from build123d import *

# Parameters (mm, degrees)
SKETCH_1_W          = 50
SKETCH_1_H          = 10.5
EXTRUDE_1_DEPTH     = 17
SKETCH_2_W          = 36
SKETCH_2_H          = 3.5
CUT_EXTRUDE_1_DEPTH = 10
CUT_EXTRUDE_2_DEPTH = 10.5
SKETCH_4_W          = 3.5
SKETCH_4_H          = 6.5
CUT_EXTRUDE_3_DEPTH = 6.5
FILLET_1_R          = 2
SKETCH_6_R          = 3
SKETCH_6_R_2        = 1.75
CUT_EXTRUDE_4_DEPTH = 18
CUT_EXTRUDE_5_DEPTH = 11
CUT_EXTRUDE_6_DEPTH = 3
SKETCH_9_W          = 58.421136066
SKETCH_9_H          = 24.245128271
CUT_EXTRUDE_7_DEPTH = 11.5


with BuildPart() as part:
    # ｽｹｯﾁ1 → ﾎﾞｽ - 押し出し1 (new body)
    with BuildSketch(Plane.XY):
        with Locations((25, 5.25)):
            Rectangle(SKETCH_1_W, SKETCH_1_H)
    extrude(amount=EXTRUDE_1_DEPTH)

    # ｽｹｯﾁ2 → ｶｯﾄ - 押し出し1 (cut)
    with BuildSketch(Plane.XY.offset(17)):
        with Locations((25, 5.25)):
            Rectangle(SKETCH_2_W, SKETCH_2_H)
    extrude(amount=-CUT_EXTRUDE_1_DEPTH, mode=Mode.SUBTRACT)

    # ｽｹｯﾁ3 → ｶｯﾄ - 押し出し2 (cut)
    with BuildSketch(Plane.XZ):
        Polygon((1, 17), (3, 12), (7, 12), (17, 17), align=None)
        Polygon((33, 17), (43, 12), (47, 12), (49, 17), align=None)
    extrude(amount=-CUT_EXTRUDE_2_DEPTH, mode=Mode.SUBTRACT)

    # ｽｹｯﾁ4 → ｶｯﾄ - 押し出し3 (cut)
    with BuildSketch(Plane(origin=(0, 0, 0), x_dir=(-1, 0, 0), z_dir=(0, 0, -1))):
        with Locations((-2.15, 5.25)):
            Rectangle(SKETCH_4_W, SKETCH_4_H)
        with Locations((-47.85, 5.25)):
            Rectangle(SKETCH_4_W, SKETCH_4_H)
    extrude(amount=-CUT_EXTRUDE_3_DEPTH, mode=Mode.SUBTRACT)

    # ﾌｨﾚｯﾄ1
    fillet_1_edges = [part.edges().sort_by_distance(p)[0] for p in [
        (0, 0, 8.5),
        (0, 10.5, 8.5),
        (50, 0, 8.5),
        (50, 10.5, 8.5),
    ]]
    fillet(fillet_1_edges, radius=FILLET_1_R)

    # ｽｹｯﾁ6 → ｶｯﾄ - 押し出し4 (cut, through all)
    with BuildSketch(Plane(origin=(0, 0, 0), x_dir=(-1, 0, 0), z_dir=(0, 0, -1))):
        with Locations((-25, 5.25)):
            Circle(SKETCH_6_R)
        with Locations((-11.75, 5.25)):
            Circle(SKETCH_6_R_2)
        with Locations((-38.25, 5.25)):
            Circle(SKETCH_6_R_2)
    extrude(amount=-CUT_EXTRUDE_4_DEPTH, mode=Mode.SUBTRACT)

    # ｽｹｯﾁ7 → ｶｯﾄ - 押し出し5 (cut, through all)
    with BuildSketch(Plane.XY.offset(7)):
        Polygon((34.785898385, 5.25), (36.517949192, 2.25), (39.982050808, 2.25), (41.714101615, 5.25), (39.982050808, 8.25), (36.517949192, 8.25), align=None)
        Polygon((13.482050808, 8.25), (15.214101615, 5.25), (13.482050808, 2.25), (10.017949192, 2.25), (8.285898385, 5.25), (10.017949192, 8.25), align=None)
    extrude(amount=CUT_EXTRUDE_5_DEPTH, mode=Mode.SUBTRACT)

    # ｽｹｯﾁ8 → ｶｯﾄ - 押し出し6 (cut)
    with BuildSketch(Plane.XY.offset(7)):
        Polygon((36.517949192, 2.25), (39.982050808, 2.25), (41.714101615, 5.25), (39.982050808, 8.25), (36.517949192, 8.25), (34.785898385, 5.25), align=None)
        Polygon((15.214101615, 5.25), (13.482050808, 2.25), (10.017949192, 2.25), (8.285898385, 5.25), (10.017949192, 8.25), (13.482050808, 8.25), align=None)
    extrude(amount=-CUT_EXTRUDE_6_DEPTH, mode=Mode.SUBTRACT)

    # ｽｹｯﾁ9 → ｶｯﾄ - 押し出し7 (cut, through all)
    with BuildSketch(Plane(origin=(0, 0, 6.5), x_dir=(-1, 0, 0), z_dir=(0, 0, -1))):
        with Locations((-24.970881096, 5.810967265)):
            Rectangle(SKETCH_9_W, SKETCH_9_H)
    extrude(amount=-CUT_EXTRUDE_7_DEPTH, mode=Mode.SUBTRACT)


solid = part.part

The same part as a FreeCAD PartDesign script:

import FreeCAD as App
import Part
import Sketcher
Q = App.Units.Quantity


def edges_at(feature, points):
    """Names of the edges that pass closest to the given points."""
    edges = feature.Shape.Edges
    near = lambda p: min(range(len(edges)), key=lambda i: edges[i].distToShape(Part.Vertex(*p))[0])
    return sorted({f"Edge{near(p) + 1}" for p in points})

doc = App.newDocument("Part")
params = doc.addObject("Spreadsheet::Sheet", "Params")
for row, (alias, value) in enumerate([
    ("sketch1_width", "50 mm"),
    ("sketch1_height", "10.5 mm"),
    ("pad1_length", "17 mm"),
    ("sketch2_width", "36 mm"),
    ("sketch2_height", "3.5 mm"),
    ("pocket1_length", "10 mm"),
    ("sketch3_width", "4 mm"),
    ("sketch3_width2", "16 mm"),
    ("pocket2_length", "10.5 mm"),
    ("sketch4_width", "3.5 mm"),
    ("sketch4_height", "6.5 mm"),
    ("pocket3_length", "6.5 mm"),
    ("fillet_radius", "2 mm"),
    ("sketch5_diameter", "6 mm"),
    ("sketch5_diameter2", "3.5 mm"),
    ("pocket6_length", "3 mm"),
], start=1):
    params.set(f"A{row}", alias)
    params.set(f"B{row}", "=" + value)
    params.setAlias(f"B{row}", alias)

body = doc.addObject("PartDesign::Body", "Body")

# Sketch on XY plane
sketch1 = body.newObject("Sketcher::SketchObject", "Sketch")
sketch1.AttachmentSupport = (doc.getObject("XY_Plane"), [""])
sketch1.MapMode = "FlatFace"
sketch1.addGeometry([
    Part.LineSegment(App.Vector(0, 10.5, 0), App.Vector(0, 0, 0)),
    Part.LineSegment(App.Vector(0, 0, 0), App.Vector(50, 0, 0)),
    Part.LineSegment(App.Vector(50, 0, 0), App.Vector(50, 10.5, 0)),
    Part.LineSegment(App.Vector(50, 10.5, 0), App.Vector(0, 10.5, 0)),
], False)
sketch1.addConstraint([
    Sketcher.Constraint("Coincident", 0, 2, 1, 1),
    Sketcher.Constraint("Coincident", 1, 2, 2, 1),
    Sketcher.Constraint("Coincident", 2, 2, 3, 1),
    Sketcher.Constraint("Coincident", 3, 2, 0, 1),
    Sketcher.Constraint("Vertical", 0),
    Sketcher.Constraint("Horizontal", 1),
    Sketcher.Constraint("Vertical", 2),
    Sketcher.Constraint("Horizontal", 3),
    Sketcher.Constraint("Coincident", 0, 2, -1, 1),
    Sketcher.Constraint("DistanceX", 1, 1, 1, 2, 50.0),
    Sketcher.Constraint("DistanceY", 0, 2, 0, 1, 10.5),
])
sketch1.setExpression("Constraints[9]", "Params.sketch1_width")
sketch1.setExpression("Constraints[10]", "Params.sketch1_height")
pad1 = body.newObject("PartDesign::Pad", "Pad")
pad1.Profile = sketch1
pad1.setExpression("Length", "Params.pad1_length")

# Sketch on XY plane
sketch2 = body.newObject("Sketcher::SketchObject", "Sketch001")
sketch2.AttachmentSupport = (doc.getObject("XY_Plane"), [""])
sketch2.MapMode = "FlatFace"
sketch2.AttachmentOffset = App.Placement(App.Vector(0, 0, 17), App.Rotation())
sketch2.addGeometry([
    Part.LineSegment(App.Vector(7, 7, 0), App.Vector(7, 3.5, 0)),
    Part.LineSegment(App.Vector(7, 3.5, 0), App.Vector(43, 3.5, 0)),
    Part.LineSegment(App.Vector(43, 3.5, 0), App.Vector(43, 7, 0)),
    Part.LineSegment(App.Vector(43, 7, 0), App.Vector(7, 7, 0)),
], False)
sketch2.addConstraint([
    Sketcher.Constraint("Coincident", 0, 2, 1, 1),
    Sketcher.Constraint("Coincident", 1, 2, 2, 1),
    Sketcher.Constraint("Coincident", 2, 2, 3, 1),
    Sketcher.Constraint("Coincident", 3, 2, 0, 1),
    Sketcher.Constraint("Vertical", 0),
    Sketcher.Constraint("Horizontal", 1),
    Sketcher.Constraint("Vertical", 2),
    Sketcher.Constraint("Horizontal", 3),
    Sketcher.Constraint("DistanceX", 1, 1, 1, 2, 36.0),
    Sketcher.Constraint("DistanceY", 0, 2, 0, 1, 3.5),
    Sketcher.Constraint("DistanceX", -1, 1, 0, 2, 7.0),
    Sketcher.Constraint("DistanceY", -1, 1, 2, 2, 7.0),
])
sketch2.setExpression("Constraints[8]", "Params.sketch2_width")
sketch2.setExpression("Constraints[9]", "Params.sketch2_height")
pocket1 = body.newObject("PartDesign::Pocket", "Pocket")
pocket1.Profile = sketch2
pocket1.setExpression("Length", "Params.pocket1_length")

# Sketch on XZ plane
sketch3 = body.newObject("Sketcher::SketchObject", "Sketch002")
sketch3.AttachmentSupport = (doc.getObject("XZ_Plane"), [""])
sketch3.MapMode = "FlatFace"
sketch3.addGeometry([
    Part.LineSegment(App.Vector(1, 17, 0), App.Vector(3, 12, 0)),  # 0
    Part.LineSegment(App.Vector(3, 12, 0), App.Vector(7, 12, 0)),  # 1
    Part.LineSegment(App.Vector(7, 12, 0), App.Vector(17, 17, 0)),  # 2
    Part.LineSegment(App.Vector(17, 17, 0), App.Vector(1, 17, 0)),  # 3
    Part.LineSegment(App.Vector(33, 17, 0), App.Vector(43, 12, 0)),  # 4
    Part.LineSegment(App.Vector(43, 12, 0), App.Vector(47, 12, 0)),  # 5
    Part.LineSegment(App.Vector(47, 12, 0), App.Vector(49, 17, 0)),  # 6
    Part.LineSegment(App.Vector(49, 17, 0), App.Vector(33, 17, 0)),  # 7
], False)
sketch3.addConstraint([
    Sketcher.Constraint("Coincident", 0, 2, 1, 1),
    Sketcher.Constraint("Coincident", 1, 2, 2, 1),
    Sketcher.Constraint("Coincident", 2, 2, 3, 1),
    Sketcher.Constraint("Coincident", 3, 2, 0, 1),
    Sketcher.Constraint("Coincident", 4, 2, 5, 1),
    Sketcher.Constraint("Coincident", 5, 2, 6, 1),
    Sketcher.Constraint("Coincident", 6, 2, 7, 1),
    Sketcher.Constraint("Coincident", 7, 2, 4, 1),
    Sketcher.Constraint("Horizontal", 1),
    Sketcher.Constraint("Horizontal", 3),
    Sketcher.Constraint("Horizontal", 5),
    Sketcher.Constraint("Horizontal", 7),
    Sketcher.Constraint("Horizontal", 1, 2, 4, 2),
    Sketcher.Constraint("Horizontal", 3, 2, 6, 2),
    Sketcher.Constraint("Equal", 1, 5),
    Sketcher.Constraint("Equal", 3, 7),
    Sketcher.Constraint("Equal", 2, 4),
    Sketcher.Constraint("DistanceX", 1, 1, 1, 2, 4.0),
    Sketcher.Constraint("DistanceX", 3, 2, 3, 1, 16.0),
    Sketcher.Constraint("DistanceX", -1, 1, 0, 2, 3.0),
    Sketcher.Constraint("DistanceY", -1, 1, 0, 2, 12.0),
    Sketcher.Constraint("DistanceX", -1, 1, 2, 2, 17.0),
    Sketcher.Constraint("DistanceY", -1, 1, 2, 2, 17.0),
    Sketcher.Constraint("DistanceX", -1, 1, 4, 2, 43.0),
])
sketch3.setExpression("Constraints[17]", "Params.sketch3_width")
sketch3.setExpression("Constraints[18]", "Params.sketch3_width2")
pocket2 = body.newObject("PartDesign::Pocket", "Pocket001")
pocket2.Profile = sketch3
pocket2.setExpression("Length", "Params.pocket2_length")

# Sketch on XY plane
sketch4 = body.newObject("Sketcher::SketchObject", "Sketch003")
sketch4.AttachmentSupport = (doc.getObject("XY_Plane"), [""])
sketch4.MapMode = "FlatFace"
sketch4.addGeometry([
    Part.LineSegment(App.Vector(3.9, 8.5, 0), App.Vector(3.9, 2, 0)),  # 0
    Part.LineSegment(App.Vector(3.9, 2, 0), App.Vector(0.4, 2, 0)),  # 1
    Part.LineSegment(App.Vector(0.4, 2, 0), App.Vector(0.4, 8.5, 0)),  # 2
    Part.LineSegment(App.Vector(0.4, 8.5, 0), App.Vector(3.9, 8.5, 0)),  # 3
    Part.LineSegment(App.Vector(49.6, 8.5, 0), App.Vector(49.6, 2, 0)),  # 4
    Part.LineSegment(App.Vector(49.6, 2, 0), App.Vector(46.1, 2, 0)),  # 5
    Part.LineSegment(App.Vector(46.1, 2, 0), App.Vector(46.1, 8.5, 0)),  # 6
    Part.LineSegment(App.Vector(46.1, 8.5, 0), App.Vector(49.6, 8.5, 0)),  # 7
], False)
sketch4.addConstraint([
    Sketcher.Constraint("Coincident", 0, 2, 1, 1),
    Sketcher.Constraint("Coincident", 1, 2, 2, 1),
    Sketcher.Constraint("Coincident", 2, 2, 3, 1),
    Sketcher.Constraint("Coincident", 3, 2, 0, 1),
    Sketcher.Constraint("Coincident", 4, 2, 5, 1),
    Sketcher.Constraint("Coincident", 5, 2, 6, 1),
    Sketcher.Constraint("Coincident", 6, 2, 7, 1),
    Sketcher.Constraint("Coincident", 7, 2, 4, 1),
    Sketcher.Constraint("Vertical", 0),
    Sketcher.Constraint("Horizontal", 1),
    Sketcher.Constraint("Vertical", 2),
    Sketcher.Constraint("Horizontal", 3),
    Sketcher.Constraint("Vertical", 4),
    Sketcher.Constraint("Horizontal", 5),
    Sketcher.Constraint("Vertical", 6),
    Sketcher.Constraint("Horizontal", 7),
    Sketcher.Constraint("Horizontal", 1, 2, 4, 2),
    Sketcher.Constraint("Horizontal", 3, 2, 6, 2),
    Sketcher.Constraint("Equal", 3, 5),
    Sketcher.Constraint("DistanceX", 1, 2, 1, 1, 3.5),
    Sketcher.Constraint("DistanceY", 0, 2, 0, 1, 6.5),
    Sketcher.Constraint("DistanceY", -1, 1, 0, 2, 2.0),
    Sketcher.Constraint("DistanceX", -1, 1, 0, 2, 3.9),
    Sketcher.Constraint("DistanceX", -1, 1, 4, 2, 49.6),
])
sketch4.setExpression("Constraints[19]", "Params.sketch4_width")
sketch4.setExpression("Constraints[20]", "Params.sketch4_height")
pocket3 = body.newObject("PartDesign::Pocket", "Pocket002")
pocket3.Profile = sketch4
pocket3.setExpression("Length", "Params.pocket3_length")
pocket3.Reversed = True
doc.recompute()

fillet = body.newObject("PartDesign::Fillet", "Fillet")
fillet.Base = (pocket3, edges_at(pocket3, [
    (0, 0, 8.5),
    (0, 10.5, 8.5),
    (50, 0, 8.5),
    (50, 10.5, 8.5),
]))
fillet.setExpression("Radius", "Params.fillet_radius")

# Sketch on XY plane
sketch5 = body.newObject("Sketcher::SketchObject", "Sketch004")
sketch5.AttachmentSupport = (doc.getObject("XY_Plane"), [""])
sketch5.MapMode = "FlatFace"
sketch5.addGeometry([
    Part.Circle(App.Vector(25, 5.25, 0), App.Vector(0, 0, 1), 3),
    Part.Circle(App.Vector(11.75, 5.25, 0), App.Vector(0, 0, 1), 1.75),
    Part.Circle(App.Vector(38.25, 5.25, 0), App.Vector(0, 0, 1), 1.75),
], False)
sketch5.addConstraint([
    Sketcher.Constraint("Equal", 1, 2),
    Sketcher.Constraint("Horizontal", 0, 3, 1, 3),
    Sketcher.Constraint("Horizontal", 1, 3, 2, 3),
    Sketcher.Constraint("Diameter", 0, 6.0),
    Sketcher.Constraint("Diameter", 1, 3.5),
    Sketcher.Constraint("DistanceX", -1, 1, 0, 3, 25.0),
    Sketcher.Constraint("DistanceX", 1, 3, 2, 3, 26.5),
    Sketcher.Constraint("DistanceY", -1, 1, 0, 3, 5.25),
    Sketcher.Constraint("DistanceX", -1, 1, 1, 3, 11.75),
])
sketch5.setExpression("Constraints[3]", "Params.sketch5_diameter")
sketch5.setExpression("Constraints[4]", "Params.sketch5_diameter2")
pocket4 = body.newObject("PartDesign::Pocket", "Pocket003")
pocket4.Profile = sketch5
pocket4.Type = "ThroughAll"
pocket4.Reversed = True

# Sketch on XY plane
sketch6 = body.newObject("Sketcher::SketchObject", "Sketch005")
sketch6.AttachmentSupport = (doc.getObject("XY_Plane"), [""])
sketch6.MapMode = "FlatFace"
sketch6.AttachmentOffset = App.Placement(App.Vector(0, 0, 7), App.Rotation())
sketch6.addGeometry([
    Part.LineSegment(App.Vector(34.785898, 5.25, 0), App.Vector(36.517949, 2.25, 0)),  # 0
    Part.LineSegment(App.Vector(36.517949, 2.25, 0), App.Vector(39.982051, 2.25, 0)),  # 1
    Part.LineSegment(App.Vector(39.982051, 2.25, 0), App.Vector(41.714102, 5.25, 0)),  # 2
    Part.LineSegment(App.Vector(41.714102, 5.25, 0), App.Vector(39.982051, 8.25, 0)),  # 3
    Part.LineSegment(App.Vector(39.982051, 8.25, 0), App.Vector(36.517949, 8.25, 0)),  # 4
    Part.LineSegment(App.Vector(36.517949, 8.25, 0), App.Vector(34.785898, 5.25, 0)),  # 5
    Part.LineSegment(App.Vector(15.214102, 5.25, 0), App.Vector(13.482051, 8.25, 0)),  # 6
    Part.LineSegment(App.Vector(13.482051, 8.25, 0), App.Vector(10.017949, 8.25, 0)),  # 7
    Part.LineSegment(App.Vector(10.017949, 8.25, 0), App.Vector(8.285898, 5.25, 0)),  # 8
    Part.LineSegment(App.Vector(8.285898, 5.25, 0), App.Vector(10.017949, 2.25, 0)),  # 9
    Part.LineSegment(App.Vector(10.017949, 2.25, 0), App.Vector(13.482051, 2.25, 0)),  # 10
    Part.LineSegment(App.Vector(13.482051, 2.25, 0), App.Vector(15.214102, 5.25, 0)),  # 11
], False)
sketch6.addConstraint([
    Sketcher.Constraint("Coincident", 0, 2, 1, 1),
    Sketcher.Constraint("Coincident", 1, 2, 2, 1),
    Sketcher.Constraint("Coincident", 2, 2, 3, 1),
    Sketcher.Constraint("Coincident", 3, 2, 4, 1),
    Sketcher.Constraint("Coincident", 4, 2, 5, 1),
    Sketcher.Constraint("Coincident", 5, 2, 0, 1),
    Sketcher.Constraint("Coincident", 6, 2, 7, 1),
    Sketcher.Constraint("Coincident", 7, 2, 8, 1),
    Sketcher.Constraint("Coincident", 8, 2, 9, 1),
    Sketcher.Constraint("Coincident", 9, 2, 10, 1),
    Sketcher.Constraint("Coincident", 10, 2, 11, 1),
    Sketcher.Constraint("Coincident", 11, 2, 6, 1),
    Sketcher.Constraint("Horizontal", 1),
    Sketcher.Constraint("Horizontal", 4),
    Sketcher.Constraint("Horizontal", 7),
    Sketcher.Constraint("Horizontal", 10),
    Sketcher.Constraint("Parallel", 0, 3),
    Sketcher.Constraint("Parallel", 2, 5),
    Sketcher.Constraint("Parallel", 3, 6),
    Sketcher.Constraint("Parallel", 5, 8),
    Sketcher.Constraint("Parallel", 6, 9),
    Sketcher.Constraint("Parallel", 8, 11),
    Sketcher.Constraint("Horizontal", 2, 2, 5, 2),
    Sketcher.Constraint("Horizontal", 4, 2, 6, 2),
    Sketcher.Constraint("Horizontal", 5, 2, 8, 2),
    Sketcher.Constraint("Horizontal", 1, 2, 9, 2),
    Sketcher.Constraint("Horizontal", 8, 2, 11, 2),
    Sketcher.Constraint("Vertical", 1, 2, 3, 2),
    Sketcher.Constraint("Vertical", 0, 2, 4, 2),
    Sketcher.Constraint("Equal", 4, 7),
    Sketcher.Constraint("Angle", 0, Q("-60 deg")),
    Sketcher.Constraint("DistanceY", 1, 2, 2, 2, 3.0),
    Sketcher.Constraint("DistanceX", 6, 2, 3, 2, 26.5),
    Sketcher.Constraint("DistanceY", -1, 1, 0, 2, 2.25),
    Sketcher.Constraint("DistanceX", 1, 1, 1, 2, 3.464102),
    Sketcher.Constraint("DistanceX", -1, 1, 2, 2, 41.714102),
])
pocket5 = body.newObject("PartDesign::Pocket", "Pocket004")
pocket5.Profile = sketch6
pocket5.Type = "ThroughAll"
pocket5.Reversed = True

# Sketch on XY plane
sketch7 = body.newObject("Sketcher::SketchObject", "Sketch006")
sketch7.AttachmentSupport = (doc.getObject("XY_Plane"), [""])
sketch7.MapMode = "FlatFace"
sketch7.AttachmentOffset = App.Placement(App.Vector(0, 0, 7), App.Rotation())
sketch7.addGeometry([
    Part.LineSegment(App.Vector(36.517949, 2.25, 0), App.Vector(39.982051, 2.25, 0)),  # 0
    Part.LineSegment(App.Vector(39.982051, 2.25, 0), App.Vector(41.714102, 5.25, 0)),  # 1
    Part.LineSegment(App.Vector(41.714102, 5.25, 0), App.Vector(39.982051, 8.25, 0)),  # 2
    Part.LineSegment(App.Vector(39.982051, 8.25, 0), App.Vector(36.517949, 8.25, 0)),  # 3
    Part.LineSegment(App.Vector(36.517949, 8.25, 0), App.Vector(34.785898, 5.25, 0)),  # 4
    Part.LineSegment(App.Vector(34.785898, 5.25, 0), App.Vector(36.517949, 2.25, 0)),  # 5
    Part.LineSegment(App.Vector(13.482051, 2.25, 0), App.Vector(15.214102, 5.25, 0)),  # 6
    Part.LineSegment(App.Vector(15.214102, 5.25, 0), App.Vector(13.482051, 8.25, 0)),  # 7
    Part.LineSegment(App.Vector(13.482051, 8.25, 0), App.Vector(10.017949, 8.25, 0)),  # 8
    Part.LineSegment(App.Vector(10.017949, 8.25, 0), App.Vector(8.285898, 5.25, 0)),  # 9
    Part.LineSegment(App.Vector(8.285898, 5.25, 0), App.Vector(10.017949, 2.25, 0)),  # 10
    Part.LineSegment(App.Vector(10.017949, 2.25, 0), App.Vector(13.482051, 2.25, 0)),  # 11
], False)
sketch7.addConstraint([
    Sketcher.Constraint("Coincident", 0, 2, 1, 1),
    Sketcher.Constraint("Coincident", 1, 2, 2, 1),
    Sketcher.Constraint("Coincident", 2, 2, 3, 1),
    Sketcher.Constraint("Coincident", 3, 2, 4, 1),
    Sketcher.Constraint("Coincident", 4, 2, 5, 1),
    Sketcher.Constraint("Coincident", 5, 2, 0, 1),
    Sketcher.Constraint("Coincident", 6, 2, 7, 1),
    Sketcher.Constraint("Coincident", 7, 2, 8, 1),
    Sketcher.Constraint("Coincident", 8, 2, 9, 1),
    Sketcher.Constraint("Coincident", 9, 2, 10, 1),
    Sketcher.Constraint("Coincident", 10, 2, 11, 1),
    Sketcher.Constraint("Coincident", 11, 2, 6, 1),
    Sketcher.Constraint("Horizontal", 0),
    Sketcher.Constraint("Horizontal", 3),
    Sketcher.Constraint("Horizontal", 8),
    Sketcher.Constraint("Horizontal", 11),
    Sketcher.Constraint("Parallel", 1, 4),
    Sketcher.Constraint("Parallel", 2, 5),
    Sketcher.Constraint("Parallel", 4, 6),
    Sketcher.Constraint("Parallel", 5, 7),
    Sketcher.Constraint("Parallel", 6, 9),
    Sketcher.Constraint("Parallel", 7, 10),
    Sketcher.Constraint("Horizontal", 1, 2, 4, 2),
    Sketcher.Constraint("Horizontal", 4, 2, 6, 2),
    Sketcher.Constraint("Horizontal", 3, 2, 7, 2),
    Sketcher.Constraint("Horizontal", 6, 2, 9, 2),
    Sketcher.Constraint("Horizontal", 5, 2, 10, 2),
    Sketcher.Constraint("Vertical", 0, 2, 2, 2),
    Sketcher.Constraint("Vertical", 3, 2, 5, 2),
    Sketcher.Constraint("Equal", 3, 8),
    Sketcher.Constraint("Angle", 1, Q("60 deg")),
    Sketcher.Constraint("DistanceY", 0, 2, 1, 2, 3.0),
    Sketcher.Constraint("DistanceX", 7, 2, 2, 2, 26.5),
    Sketcher.Constraint("DistanceY", -1, 1, 0, 2, 2.25),
    Sketcher.Constraint("DistanceX", 0, 1, 0, 2, 3.464102),
    Sketcher.Constraint("DistanceX", -1, 1, 1, 2, 41.714102),
])
pocket6 = body.newObject("PartDesign::Pocket", "Pocket005")
pocket6.Profile = sketch7
pocket6.setExpression("Length", "Params.pocket6_length")

# Sketch on XY plane
sketch8 = body.newObject("Sketcher::SketchObject", "Sketch007")
sketch8.AttachmentSupport = (doc.getObject("XY_Plane"), [""])
sketch8.MapMode = "FlatFace"
sketch8.AttachmentOffset = App.Placement(App.Vector(0, 0, 6.5), App.Rotation())
sketch8.addGeometry([
    Part.LineSegment(App.Vector(54.181449, 17.933531, 0), App.Vector(54.181449, -6.311597, 0)),
    Part.LineSegment(App.Vector(54.181449, -6.311597, 0), App.Vector(-4.239687, -6.311597, 0)),
    Part.LineSegment(App.Vector(-4.239687, -6.311597, 0), App.Vector(-4.239687, 17.933531, 0)),
    Part.LineSegment(App.Vector(-4.239687, 17.933531, 0), App.Vector(54.181449, 17.933531, 0)),
], False)
sketch8.addConstraint([
    Sketcher.Constraint("Coincident", 0, 2, 1, 1),
    Sketcher.Constraint("Coincident", 1, 2, 2, 1),
    Sketcher.Constraint("Coincident", 2, 2, 3, 1),
    Sketcher.Constraint("Coincident", 3, 2, 0, 1),
    Sketcher.Constraint("Vertical", 0),
    Sketcher.Constraint("Horizontal", 1),
    Sketcher.Constraint("Vertical", 2),
    Sketcher.Constraint("Horizontal", 3),
    Sketcher.Constraint("DistanceY", 0, 2, 0, 1, 24.245128),
    Sketcher.Constraint("DistanceX", 1, 2, 1, 1, 58.421136),
    Sketcher.Constraint("DistanceX", -1, 1, 0, 2, 54.181449),
    Sketcher.Constraint("DistanceY", -1, 1, 2, 2, 17.933531),
])
pocket7 = body.newObject("PartDesign::Pocket", "Pocket006")
pocket7.Profile = sketch8
pocket7.Type = "ThroughAll"
pocket7.Reversed = True

doc.recompute()
